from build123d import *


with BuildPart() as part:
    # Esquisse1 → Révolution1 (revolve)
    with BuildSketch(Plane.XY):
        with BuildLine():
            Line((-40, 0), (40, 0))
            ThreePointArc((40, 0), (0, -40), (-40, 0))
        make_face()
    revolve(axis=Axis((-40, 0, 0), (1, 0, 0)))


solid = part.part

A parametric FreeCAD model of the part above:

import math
import FreeCAD as App
import Part
import Sketcher
Q = App.Units.Quantity

doc = App.newDocument("Part")
body = doc.addObject("PartDesign::Body", "Body")

sketch1 = body.newObject("Sketcher::SketchObject", "Sketch")
sketch1.AttachmentSupport = (doc.getObject("XY_Plane"), [""])
sketch1.MapMode = "FlatFace"
sketch1.addGeometry([
    Part.LineSegment(App.Vector(40, 0, 0), App.Vector(-40, 0, 0)),
    Part.ArcOfCircle(Part.Circle(App.Vector(0, 0, 0), App.Vector(0, 0, 1), 40), math.radians(180), math.radians(360)),
], False)
sketch1.addConstraint([
    Sketcher.Constraint("Coincident", 0, 1, 1, 2),
    Sketcher.Constraint("Coincident", 1, 1, 0, 2),
    Sketcher.Constraint("Horizontal", 0),
    Sketcher.Constraint("Coincident", 1, 3, -1, 1),
    Sketcher.Constraint("PointOnObject", 0, 1, -1),
    Sketcher.Constraint("Radius", 1, Q("40 mm")),
])
revolution = body.newObject("PartDesign::Revolution", "Revolution")
revolution.Profile = sketch1
revolution.ReferenceAxis = (sketch1, ["H_Axis"])
revolution.Angle = 360

doc.recompute()
